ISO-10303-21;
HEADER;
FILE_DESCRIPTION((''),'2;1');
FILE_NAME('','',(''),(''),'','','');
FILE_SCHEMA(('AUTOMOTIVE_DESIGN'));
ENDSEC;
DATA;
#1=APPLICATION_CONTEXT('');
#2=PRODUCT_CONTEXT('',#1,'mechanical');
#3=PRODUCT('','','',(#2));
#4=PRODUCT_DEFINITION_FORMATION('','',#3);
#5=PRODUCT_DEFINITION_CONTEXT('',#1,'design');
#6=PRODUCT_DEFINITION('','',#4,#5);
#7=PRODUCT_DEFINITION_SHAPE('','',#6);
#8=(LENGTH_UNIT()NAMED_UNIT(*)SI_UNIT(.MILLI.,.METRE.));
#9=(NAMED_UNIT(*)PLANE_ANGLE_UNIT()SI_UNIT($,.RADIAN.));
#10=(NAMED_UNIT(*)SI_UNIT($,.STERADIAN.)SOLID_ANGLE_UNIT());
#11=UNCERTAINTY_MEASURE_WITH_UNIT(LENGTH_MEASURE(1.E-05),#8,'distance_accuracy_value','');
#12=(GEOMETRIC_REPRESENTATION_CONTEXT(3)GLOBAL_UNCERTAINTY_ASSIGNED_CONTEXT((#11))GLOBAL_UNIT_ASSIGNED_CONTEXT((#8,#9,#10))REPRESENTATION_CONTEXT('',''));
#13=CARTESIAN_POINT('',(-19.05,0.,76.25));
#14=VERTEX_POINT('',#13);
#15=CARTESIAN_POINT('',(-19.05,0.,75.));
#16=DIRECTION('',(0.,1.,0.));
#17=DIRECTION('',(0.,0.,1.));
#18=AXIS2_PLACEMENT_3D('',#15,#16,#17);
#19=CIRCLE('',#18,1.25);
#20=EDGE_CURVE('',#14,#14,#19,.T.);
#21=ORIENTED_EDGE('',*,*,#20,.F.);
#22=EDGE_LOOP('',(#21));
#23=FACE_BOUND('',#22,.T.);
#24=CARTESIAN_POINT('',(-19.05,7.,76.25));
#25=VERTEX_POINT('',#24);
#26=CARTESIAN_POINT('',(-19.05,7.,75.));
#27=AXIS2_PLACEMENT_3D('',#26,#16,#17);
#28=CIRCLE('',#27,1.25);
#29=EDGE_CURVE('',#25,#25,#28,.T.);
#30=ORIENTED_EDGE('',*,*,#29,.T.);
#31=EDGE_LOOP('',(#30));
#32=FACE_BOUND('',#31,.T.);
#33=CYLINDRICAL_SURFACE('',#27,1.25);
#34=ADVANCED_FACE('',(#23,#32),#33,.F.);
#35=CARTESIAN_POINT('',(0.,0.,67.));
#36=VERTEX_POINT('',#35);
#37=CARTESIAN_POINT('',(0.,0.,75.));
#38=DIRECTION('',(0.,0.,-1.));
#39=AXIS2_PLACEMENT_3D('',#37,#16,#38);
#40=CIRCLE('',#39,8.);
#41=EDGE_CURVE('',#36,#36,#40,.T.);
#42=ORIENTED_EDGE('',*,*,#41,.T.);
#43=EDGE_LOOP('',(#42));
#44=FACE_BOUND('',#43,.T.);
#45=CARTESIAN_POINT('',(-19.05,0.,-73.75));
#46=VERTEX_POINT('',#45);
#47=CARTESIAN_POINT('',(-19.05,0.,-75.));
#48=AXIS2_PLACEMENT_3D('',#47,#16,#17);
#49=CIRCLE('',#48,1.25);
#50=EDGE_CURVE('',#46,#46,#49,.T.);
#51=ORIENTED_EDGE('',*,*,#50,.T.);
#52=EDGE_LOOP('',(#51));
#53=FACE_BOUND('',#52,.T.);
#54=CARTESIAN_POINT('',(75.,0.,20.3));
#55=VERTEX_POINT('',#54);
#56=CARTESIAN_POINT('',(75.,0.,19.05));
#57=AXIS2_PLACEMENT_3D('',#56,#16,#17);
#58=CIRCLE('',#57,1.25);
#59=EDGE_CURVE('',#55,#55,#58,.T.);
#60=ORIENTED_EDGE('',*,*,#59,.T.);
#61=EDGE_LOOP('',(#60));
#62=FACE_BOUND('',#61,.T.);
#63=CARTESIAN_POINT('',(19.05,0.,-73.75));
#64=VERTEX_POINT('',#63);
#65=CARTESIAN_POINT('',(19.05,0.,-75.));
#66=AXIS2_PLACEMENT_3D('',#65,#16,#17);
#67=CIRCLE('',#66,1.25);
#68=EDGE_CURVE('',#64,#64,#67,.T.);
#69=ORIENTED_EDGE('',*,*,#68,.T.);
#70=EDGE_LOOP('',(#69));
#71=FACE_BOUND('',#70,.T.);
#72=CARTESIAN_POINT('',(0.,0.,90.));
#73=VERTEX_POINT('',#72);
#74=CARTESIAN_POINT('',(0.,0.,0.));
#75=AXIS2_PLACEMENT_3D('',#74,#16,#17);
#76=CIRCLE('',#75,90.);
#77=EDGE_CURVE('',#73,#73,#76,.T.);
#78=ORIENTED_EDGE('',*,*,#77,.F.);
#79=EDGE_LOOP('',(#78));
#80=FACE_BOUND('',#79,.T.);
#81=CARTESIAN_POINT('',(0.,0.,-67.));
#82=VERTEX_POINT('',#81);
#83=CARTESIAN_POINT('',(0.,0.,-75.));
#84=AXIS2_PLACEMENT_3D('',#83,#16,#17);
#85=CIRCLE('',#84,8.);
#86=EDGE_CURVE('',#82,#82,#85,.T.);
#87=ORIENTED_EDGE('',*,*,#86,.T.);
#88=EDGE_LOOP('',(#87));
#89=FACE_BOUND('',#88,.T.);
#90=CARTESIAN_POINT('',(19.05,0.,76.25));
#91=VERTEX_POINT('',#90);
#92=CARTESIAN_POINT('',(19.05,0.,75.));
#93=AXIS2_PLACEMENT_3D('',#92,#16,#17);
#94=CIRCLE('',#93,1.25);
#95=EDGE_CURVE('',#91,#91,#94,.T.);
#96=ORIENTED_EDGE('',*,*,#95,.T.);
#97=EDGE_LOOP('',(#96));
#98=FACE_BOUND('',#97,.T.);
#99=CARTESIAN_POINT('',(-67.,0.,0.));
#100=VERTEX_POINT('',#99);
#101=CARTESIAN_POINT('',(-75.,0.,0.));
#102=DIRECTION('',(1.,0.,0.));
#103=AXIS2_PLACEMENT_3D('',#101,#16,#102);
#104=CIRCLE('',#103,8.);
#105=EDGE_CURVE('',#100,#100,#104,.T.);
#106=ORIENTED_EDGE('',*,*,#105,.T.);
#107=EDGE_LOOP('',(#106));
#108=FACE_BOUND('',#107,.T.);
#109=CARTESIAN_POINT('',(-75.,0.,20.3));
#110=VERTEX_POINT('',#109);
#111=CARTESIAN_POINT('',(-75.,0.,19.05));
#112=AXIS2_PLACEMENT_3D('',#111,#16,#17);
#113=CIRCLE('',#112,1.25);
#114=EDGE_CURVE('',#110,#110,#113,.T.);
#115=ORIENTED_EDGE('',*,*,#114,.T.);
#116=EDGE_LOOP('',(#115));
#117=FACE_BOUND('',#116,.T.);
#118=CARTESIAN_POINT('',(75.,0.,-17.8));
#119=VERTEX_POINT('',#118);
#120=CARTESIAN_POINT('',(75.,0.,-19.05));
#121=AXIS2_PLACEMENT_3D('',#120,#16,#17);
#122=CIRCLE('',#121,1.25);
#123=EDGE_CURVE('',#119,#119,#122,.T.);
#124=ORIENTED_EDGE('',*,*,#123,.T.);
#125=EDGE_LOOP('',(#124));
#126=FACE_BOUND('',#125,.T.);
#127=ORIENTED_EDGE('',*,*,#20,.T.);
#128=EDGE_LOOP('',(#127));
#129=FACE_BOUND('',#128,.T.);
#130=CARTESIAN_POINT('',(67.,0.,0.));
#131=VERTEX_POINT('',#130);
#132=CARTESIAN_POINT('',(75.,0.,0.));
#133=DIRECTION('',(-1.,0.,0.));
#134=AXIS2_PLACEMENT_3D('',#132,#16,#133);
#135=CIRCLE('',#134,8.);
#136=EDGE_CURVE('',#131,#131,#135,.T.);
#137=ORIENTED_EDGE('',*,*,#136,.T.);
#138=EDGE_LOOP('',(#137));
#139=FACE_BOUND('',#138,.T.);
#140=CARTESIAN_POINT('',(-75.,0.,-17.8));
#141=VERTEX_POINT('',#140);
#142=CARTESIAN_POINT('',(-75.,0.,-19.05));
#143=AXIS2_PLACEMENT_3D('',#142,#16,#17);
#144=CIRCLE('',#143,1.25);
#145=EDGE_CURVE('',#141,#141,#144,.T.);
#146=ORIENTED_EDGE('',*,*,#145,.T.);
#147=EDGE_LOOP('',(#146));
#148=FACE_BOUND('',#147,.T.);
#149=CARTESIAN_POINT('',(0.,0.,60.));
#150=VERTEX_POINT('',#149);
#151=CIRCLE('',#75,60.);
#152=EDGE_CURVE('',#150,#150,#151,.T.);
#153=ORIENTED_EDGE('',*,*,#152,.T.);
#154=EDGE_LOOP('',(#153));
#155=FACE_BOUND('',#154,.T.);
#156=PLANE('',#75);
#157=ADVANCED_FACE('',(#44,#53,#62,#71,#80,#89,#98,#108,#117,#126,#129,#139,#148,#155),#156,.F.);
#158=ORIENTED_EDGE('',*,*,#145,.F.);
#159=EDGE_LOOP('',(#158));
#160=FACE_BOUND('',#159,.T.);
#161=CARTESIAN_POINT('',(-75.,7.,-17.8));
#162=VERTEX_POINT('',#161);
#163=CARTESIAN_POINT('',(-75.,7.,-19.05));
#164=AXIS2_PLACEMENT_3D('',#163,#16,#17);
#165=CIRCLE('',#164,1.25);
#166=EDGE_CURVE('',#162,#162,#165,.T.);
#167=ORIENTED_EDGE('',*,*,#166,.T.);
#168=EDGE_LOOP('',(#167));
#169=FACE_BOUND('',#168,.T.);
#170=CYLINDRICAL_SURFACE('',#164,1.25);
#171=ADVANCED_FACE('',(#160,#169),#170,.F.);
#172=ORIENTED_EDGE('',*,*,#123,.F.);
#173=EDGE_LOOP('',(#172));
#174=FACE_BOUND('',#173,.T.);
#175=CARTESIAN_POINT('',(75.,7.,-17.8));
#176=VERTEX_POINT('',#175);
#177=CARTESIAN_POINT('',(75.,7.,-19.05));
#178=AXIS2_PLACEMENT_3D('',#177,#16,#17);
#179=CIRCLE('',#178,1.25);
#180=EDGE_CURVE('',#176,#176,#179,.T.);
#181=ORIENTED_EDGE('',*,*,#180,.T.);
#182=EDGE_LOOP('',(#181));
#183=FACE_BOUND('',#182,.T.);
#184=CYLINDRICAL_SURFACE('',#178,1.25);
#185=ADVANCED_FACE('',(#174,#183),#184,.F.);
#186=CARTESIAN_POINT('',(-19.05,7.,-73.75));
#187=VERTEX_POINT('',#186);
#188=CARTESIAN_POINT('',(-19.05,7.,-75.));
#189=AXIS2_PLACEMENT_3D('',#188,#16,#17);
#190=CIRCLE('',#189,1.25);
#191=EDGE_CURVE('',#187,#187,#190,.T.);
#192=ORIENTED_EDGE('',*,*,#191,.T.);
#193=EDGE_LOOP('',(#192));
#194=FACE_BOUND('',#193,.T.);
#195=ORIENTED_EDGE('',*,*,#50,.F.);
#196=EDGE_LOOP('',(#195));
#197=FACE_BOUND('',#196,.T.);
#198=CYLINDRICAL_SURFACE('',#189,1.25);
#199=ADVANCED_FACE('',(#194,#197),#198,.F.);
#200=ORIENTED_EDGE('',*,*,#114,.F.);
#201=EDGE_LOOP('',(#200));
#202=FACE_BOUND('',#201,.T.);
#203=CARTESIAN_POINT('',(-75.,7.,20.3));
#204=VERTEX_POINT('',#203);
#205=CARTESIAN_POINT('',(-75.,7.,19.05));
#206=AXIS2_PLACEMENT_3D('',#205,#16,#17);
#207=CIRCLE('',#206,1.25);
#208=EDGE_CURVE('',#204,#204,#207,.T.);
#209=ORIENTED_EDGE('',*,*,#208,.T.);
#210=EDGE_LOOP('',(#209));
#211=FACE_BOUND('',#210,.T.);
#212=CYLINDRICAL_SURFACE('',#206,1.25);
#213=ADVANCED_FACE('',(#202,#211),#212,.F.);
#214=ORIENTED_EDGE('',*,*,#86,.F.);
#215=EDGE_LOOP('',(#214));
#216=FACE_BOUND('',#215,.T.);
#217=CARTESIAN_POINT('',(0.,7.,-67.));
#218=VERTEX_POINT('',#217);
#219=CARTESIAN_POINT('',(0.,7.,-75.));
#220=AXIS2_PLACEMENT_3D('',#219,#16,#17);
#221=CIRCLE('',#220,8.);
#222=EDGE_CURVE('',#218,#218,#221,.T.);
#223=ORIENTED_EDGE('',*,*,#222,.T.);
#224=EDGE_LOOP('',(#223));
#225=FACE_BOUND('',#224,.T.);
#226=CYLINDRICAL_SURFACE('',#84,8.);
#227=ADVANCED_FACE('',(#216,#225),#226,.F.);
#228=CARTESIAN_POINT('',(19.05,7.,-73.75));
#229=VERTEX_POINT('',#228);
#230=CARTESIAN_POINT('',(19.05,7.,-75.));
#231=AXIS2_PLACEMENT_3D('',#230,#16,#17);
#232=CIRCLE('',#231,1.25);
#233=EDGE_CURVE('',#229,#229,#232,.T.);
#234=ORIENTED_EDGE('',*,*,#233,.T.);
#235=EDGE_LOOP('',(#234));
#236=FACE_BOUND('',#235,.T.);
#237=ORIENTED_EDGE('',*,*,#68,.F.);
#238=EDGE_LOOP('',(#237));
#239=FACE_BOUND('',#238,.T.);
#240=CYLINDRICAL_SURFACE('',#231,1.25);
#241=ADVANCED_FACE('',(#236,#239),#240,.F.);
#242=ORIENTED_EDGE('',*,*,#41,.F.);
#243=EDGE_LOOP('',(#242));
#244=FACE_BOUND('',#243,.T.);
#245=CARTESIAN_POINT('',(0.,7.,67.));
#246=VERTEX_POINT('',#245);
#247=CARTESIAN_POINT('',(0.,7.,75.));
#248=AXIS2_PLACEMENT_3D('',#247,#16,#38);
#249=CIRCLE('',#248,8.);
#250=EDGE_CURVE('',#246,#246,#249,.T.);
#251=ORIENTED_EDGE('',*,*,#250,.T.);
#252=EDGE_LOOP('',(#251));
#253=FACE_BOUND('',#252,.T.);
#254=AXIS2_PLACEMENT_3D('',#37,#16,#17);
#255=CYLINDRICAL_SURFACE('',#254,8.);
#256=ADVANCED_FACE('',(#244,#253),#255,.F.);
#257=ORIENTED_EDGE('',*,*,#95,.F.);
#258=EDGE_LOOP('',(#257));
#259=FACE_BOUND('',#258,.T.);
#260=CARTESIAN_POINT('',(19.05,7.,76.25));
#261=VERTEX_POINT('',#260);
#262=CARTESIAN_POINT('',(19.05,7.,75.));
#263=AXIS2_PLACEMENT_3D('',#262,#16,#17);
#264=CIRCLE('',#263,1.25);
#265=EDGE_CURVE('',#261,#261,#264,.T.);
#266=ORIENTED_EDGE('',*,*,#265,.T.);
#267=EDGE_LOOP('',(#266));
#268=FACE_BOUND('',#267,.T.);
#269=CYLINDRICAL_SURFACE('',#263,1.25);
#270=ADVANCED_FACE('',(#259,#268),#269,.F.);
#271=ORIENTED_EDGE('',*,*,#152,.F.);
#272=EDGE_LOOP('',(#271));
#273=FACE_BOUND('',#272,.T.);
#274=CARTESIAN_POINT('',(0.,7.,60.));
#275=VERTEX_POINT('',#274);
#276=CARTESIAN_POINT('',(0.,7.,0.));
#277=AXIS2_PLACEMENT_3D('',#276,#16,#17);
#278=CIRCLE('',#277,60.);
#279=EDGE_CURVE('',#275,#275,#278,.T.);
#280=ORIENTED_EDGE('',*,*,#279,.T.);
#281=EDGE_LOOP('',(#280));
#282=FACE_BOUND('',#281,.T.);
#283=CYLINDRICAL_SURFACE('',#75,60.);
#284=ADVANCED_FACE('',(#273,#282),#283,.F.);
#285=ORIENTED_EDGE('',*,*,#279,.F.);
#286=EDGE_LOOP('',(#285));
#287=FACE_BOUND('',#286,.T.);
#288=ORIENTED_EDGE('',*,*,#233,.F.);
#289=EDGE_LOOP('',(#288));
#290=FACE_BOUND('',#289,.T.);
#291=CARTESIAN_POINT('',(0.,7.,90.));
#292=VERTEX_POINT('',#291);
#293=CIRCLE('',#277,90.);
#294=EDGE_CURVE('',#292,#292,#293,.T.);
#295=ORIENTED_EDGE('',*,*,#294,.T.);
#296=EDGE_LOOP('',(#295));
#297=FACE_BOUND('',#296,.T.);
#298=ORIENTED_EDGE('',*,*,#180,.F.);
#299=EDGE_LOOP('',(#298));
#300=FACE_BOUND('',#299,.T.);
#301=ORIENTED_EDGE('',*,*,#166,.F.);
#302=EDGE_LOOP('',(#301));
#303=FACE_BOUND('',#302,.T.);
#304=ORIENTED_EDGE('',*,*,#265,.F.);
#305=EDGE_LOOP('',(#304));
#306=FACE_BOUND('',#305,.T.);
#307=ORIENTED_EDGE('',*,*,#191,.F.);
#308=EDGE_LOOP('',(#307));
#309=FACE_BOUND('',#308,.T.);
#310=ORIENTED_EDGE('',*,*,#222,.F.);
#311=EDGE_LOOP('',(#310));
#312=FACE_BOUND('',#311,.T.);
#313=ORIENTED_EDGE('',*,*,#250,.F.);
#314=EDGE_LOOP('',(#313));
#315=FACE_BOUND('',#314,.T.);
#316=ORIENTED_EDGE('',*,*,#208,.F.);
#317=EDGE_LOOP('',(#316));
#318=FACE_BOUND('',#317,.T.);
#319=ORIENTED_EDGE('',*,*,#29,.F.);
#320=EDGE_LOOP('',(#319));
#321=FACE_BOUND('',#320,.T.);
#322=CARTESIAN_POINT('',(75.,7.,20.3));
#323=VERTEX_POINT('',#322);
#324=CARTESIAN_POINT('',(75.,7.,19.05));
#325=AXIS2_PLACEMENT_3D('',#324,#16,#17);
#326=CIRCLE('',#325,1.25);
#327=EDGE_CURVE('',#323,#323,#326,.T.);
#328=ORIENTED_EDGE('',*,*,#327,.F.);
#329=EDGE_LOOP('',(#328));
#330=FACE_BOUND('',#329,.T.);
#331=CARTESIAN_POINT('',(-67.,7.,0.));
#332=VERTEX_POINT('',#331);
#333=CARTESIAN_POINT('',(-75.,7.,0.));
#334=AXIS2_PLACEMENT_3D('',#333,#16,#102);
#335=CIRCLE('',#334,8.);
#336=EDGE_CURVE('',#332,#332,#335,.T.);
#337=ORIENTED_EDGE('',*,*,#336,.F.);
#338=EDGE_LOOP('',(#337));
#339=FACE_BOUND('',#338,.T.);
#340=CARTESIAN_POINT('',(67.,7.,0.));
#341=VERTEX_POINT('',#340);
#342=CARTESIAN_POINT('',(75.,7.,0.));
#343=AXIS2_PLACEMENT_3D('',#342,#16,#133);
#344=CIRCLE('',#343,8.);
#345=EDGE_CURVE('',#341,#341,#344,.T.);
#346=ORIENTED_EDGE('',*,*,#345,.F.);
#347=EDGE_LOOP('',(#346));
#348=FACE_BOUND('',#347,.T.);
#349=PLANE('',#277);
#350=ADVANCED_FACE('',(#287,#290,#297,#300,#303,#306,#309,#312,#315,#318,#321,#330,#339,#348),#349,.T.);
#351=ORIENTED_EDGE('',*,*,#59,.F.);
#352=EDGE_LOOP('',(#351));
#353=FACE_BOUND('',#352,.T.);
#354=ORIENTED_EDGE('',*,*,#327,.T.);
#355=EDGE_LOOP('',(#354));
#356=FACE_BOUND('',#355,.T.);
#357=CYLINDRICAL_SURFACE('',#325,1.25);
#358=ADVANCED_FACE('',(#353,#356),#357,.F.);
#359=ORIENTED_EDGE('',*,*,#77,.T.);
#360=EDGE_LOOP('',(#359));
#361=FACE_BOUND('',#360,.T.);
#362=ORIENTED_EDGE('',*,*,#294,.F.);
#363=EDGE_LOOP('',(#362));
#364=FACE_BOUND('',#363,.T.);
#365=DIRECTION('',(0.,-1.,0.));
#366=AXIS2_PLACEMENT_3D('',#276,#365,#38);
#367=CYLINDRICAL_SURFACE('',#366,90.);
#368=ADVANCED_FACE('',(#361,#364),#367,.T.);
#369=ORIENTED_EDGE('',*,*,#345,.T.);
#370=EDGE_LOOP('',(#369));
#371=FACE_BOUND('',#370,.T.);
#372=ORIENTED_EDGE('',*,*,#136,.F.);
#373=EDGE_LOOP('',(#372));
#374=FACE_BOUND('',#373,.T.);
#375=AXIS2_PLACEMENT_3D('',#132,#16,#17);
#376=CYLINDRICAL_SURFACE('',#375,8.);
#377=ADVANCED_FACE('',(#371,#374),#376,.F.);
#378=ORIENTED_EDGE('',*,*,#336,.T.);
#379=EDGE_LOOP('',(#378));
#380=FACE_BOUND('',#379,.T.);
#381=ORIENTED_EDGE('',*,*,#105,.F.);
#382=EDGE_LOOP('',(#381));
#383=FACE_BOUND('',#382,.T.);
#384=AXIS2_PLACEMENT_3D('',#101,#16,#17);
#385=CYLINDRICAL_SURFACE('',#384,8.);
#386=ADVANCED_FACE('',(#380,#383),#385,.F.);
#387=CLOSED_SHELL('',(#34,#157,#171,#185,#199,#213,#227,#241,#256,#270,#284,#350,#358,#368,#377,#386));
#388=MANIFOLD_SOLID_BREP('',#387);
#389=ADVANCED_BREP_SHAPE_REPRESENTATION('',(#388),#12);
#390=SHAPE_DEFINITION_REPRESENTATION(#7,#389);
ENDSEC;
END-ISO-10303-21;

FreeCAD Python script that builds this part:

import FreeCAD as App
import Part
import Sketcher

doc = App.newDocument("Part")
body = doc.addObject("PartDesign::Body", "Body")

sketch1 = body.newObject("Sketcher::SketchObject", "Sketch")
sketch1.AttachmentSupport = (doc.getObject("XZ_Plane"), [""])
sketch1.MapMode = "FlatFace"
sketch1.addGeometry(Part.Circle(App.Vector(0, 0, 0), App.Vector(0, 0, 1), 90), False)
sketch1.addConstraint(Sketcher.Constraint("Coincident", 0, 3, -1, 1))
sketch1.addConstraint(Sketcher.Constraint("Diameter", 0, 180.0))
pad1 = body.newObject("PartDesign::Pad", "Pad")
pad1.Profile = sketch1
pad1.Length = 7
pad1.Reversed = True

sketch2 = body.newObject("Sketcher::SketchObject", "Sketch001")
sketch2.AttachmentSupport = (doc.getObject("XZ_Plane"), [""])
sketch2.MapMode = "FlatFace"
sketch2.AttachmentOffset = App.Placement(App.Vector(0, 0, -7), App.Rotation())
sketch2.addGeometry(Part.Circle(App.Vector(0, -75, 0), App.Vector(0, 0, 1), 8), False)
sketch2.addConstraint(Sketcher.Constraint("PointOnObject", 0, 3, -2))
sketch2.addConstraint(Sketcher.Constraint("Diameter", 0, 16.0))
sketch2.addConstraint(Sketcher.Constraint("DistanceY", 0, 3, -1, 1, 75.0))
pocket1 = body.newObject("PartDesign::Pocket", "Pocket")
pocket1.Profile = sketch2
pocket1.Type = "ThroughAll"
pocket1.Reversed = True

sketch3 = body.newObject("Sketcher::SketchObject", "Sketch002")
sketch3.AttachmentSupport = (doc.getObject("XZ_Plane"), [""])
sketch3.MapMode = "FlatFace"
sketch3.AttachmentOffset = App.Placement(App.Vector(0, 0, -7), App.Rotation())
sketch3.addGeometry(Part.Circle(App.Vector(-19.1, -75, 0), App.Vector(0, 0, 1), 1.2), False)
sketch3.addGeometry(Part.Circle(App.Vector(19.1, -75, 0), App.Vector(0, 0, 1), 1.2), False)
sketch3.addConstraint(Sketcher.Constraint("Equal", 0, 1))
sketch3.addConstraint(Sketcher.Constraint("Symmetric", 0, 3, 1, 3, -2))
sketch3.addConstraint(Sketcher.Constraint("Diameter", 0, 2.5))
sketch3.addConstraint(Sketcher.Constraint("DistanceY", 0, 3, -1, 1, 75.0))
sketch3.addConstraint(Sketcher.Constraint("DistanceX", 0, 3, 1, 3, 38.1))
doc.recompute()
hole = body.newObject("PartDesign::Hole", "Hole")
hole.Profile = sketch3
hole.ThreadType = "None"
hole.Diameter = 2.5
hole.DepthType = "ThroughAll"
hole.Reversed = True
doc.recompute()

polarpattern = body.newObject("PartDesign::PolarPattern", "PolarPattern")
polarpattern.Originals = [pocket1, hole]
polarpattern.Axis = (doc.getObject("Y_Axis"), [""])
polarpattern.Angle = 360
polarpattern.Occurrences = 4
body.Tip = polarpattern

sketch4 = body.newObject("Sketcher::SketchObject", "Sketch003")
sketch4.AttachmentSupport = (doc.getObject("XZ_Plane"), [""])
sketch4.MapMode = "FlatFace"
sketch4.AttachmentOffset = App.Placement(App.Vector(0, 0, -7), App.Rotation())
sketch4.addGeometry(Part.Circle(App.Vector(0, 0, 0), App.Vector(0, 0, 1), 60), False)
sketch4.addConstraint(Sketcher.Constraint("Coincident", 0, 3, -1, 1))
sketch4.addConstraint(Sketcher.Constraint("Diameter", 0, 120.0))
pocket2 = body.newObject("PartDesign::Pocket", "Pocket001")
pocket2.Profile = sketch4
pocket2.Type = "ThroughAll"
pocket2.Reversed = True

doc.recompute()
